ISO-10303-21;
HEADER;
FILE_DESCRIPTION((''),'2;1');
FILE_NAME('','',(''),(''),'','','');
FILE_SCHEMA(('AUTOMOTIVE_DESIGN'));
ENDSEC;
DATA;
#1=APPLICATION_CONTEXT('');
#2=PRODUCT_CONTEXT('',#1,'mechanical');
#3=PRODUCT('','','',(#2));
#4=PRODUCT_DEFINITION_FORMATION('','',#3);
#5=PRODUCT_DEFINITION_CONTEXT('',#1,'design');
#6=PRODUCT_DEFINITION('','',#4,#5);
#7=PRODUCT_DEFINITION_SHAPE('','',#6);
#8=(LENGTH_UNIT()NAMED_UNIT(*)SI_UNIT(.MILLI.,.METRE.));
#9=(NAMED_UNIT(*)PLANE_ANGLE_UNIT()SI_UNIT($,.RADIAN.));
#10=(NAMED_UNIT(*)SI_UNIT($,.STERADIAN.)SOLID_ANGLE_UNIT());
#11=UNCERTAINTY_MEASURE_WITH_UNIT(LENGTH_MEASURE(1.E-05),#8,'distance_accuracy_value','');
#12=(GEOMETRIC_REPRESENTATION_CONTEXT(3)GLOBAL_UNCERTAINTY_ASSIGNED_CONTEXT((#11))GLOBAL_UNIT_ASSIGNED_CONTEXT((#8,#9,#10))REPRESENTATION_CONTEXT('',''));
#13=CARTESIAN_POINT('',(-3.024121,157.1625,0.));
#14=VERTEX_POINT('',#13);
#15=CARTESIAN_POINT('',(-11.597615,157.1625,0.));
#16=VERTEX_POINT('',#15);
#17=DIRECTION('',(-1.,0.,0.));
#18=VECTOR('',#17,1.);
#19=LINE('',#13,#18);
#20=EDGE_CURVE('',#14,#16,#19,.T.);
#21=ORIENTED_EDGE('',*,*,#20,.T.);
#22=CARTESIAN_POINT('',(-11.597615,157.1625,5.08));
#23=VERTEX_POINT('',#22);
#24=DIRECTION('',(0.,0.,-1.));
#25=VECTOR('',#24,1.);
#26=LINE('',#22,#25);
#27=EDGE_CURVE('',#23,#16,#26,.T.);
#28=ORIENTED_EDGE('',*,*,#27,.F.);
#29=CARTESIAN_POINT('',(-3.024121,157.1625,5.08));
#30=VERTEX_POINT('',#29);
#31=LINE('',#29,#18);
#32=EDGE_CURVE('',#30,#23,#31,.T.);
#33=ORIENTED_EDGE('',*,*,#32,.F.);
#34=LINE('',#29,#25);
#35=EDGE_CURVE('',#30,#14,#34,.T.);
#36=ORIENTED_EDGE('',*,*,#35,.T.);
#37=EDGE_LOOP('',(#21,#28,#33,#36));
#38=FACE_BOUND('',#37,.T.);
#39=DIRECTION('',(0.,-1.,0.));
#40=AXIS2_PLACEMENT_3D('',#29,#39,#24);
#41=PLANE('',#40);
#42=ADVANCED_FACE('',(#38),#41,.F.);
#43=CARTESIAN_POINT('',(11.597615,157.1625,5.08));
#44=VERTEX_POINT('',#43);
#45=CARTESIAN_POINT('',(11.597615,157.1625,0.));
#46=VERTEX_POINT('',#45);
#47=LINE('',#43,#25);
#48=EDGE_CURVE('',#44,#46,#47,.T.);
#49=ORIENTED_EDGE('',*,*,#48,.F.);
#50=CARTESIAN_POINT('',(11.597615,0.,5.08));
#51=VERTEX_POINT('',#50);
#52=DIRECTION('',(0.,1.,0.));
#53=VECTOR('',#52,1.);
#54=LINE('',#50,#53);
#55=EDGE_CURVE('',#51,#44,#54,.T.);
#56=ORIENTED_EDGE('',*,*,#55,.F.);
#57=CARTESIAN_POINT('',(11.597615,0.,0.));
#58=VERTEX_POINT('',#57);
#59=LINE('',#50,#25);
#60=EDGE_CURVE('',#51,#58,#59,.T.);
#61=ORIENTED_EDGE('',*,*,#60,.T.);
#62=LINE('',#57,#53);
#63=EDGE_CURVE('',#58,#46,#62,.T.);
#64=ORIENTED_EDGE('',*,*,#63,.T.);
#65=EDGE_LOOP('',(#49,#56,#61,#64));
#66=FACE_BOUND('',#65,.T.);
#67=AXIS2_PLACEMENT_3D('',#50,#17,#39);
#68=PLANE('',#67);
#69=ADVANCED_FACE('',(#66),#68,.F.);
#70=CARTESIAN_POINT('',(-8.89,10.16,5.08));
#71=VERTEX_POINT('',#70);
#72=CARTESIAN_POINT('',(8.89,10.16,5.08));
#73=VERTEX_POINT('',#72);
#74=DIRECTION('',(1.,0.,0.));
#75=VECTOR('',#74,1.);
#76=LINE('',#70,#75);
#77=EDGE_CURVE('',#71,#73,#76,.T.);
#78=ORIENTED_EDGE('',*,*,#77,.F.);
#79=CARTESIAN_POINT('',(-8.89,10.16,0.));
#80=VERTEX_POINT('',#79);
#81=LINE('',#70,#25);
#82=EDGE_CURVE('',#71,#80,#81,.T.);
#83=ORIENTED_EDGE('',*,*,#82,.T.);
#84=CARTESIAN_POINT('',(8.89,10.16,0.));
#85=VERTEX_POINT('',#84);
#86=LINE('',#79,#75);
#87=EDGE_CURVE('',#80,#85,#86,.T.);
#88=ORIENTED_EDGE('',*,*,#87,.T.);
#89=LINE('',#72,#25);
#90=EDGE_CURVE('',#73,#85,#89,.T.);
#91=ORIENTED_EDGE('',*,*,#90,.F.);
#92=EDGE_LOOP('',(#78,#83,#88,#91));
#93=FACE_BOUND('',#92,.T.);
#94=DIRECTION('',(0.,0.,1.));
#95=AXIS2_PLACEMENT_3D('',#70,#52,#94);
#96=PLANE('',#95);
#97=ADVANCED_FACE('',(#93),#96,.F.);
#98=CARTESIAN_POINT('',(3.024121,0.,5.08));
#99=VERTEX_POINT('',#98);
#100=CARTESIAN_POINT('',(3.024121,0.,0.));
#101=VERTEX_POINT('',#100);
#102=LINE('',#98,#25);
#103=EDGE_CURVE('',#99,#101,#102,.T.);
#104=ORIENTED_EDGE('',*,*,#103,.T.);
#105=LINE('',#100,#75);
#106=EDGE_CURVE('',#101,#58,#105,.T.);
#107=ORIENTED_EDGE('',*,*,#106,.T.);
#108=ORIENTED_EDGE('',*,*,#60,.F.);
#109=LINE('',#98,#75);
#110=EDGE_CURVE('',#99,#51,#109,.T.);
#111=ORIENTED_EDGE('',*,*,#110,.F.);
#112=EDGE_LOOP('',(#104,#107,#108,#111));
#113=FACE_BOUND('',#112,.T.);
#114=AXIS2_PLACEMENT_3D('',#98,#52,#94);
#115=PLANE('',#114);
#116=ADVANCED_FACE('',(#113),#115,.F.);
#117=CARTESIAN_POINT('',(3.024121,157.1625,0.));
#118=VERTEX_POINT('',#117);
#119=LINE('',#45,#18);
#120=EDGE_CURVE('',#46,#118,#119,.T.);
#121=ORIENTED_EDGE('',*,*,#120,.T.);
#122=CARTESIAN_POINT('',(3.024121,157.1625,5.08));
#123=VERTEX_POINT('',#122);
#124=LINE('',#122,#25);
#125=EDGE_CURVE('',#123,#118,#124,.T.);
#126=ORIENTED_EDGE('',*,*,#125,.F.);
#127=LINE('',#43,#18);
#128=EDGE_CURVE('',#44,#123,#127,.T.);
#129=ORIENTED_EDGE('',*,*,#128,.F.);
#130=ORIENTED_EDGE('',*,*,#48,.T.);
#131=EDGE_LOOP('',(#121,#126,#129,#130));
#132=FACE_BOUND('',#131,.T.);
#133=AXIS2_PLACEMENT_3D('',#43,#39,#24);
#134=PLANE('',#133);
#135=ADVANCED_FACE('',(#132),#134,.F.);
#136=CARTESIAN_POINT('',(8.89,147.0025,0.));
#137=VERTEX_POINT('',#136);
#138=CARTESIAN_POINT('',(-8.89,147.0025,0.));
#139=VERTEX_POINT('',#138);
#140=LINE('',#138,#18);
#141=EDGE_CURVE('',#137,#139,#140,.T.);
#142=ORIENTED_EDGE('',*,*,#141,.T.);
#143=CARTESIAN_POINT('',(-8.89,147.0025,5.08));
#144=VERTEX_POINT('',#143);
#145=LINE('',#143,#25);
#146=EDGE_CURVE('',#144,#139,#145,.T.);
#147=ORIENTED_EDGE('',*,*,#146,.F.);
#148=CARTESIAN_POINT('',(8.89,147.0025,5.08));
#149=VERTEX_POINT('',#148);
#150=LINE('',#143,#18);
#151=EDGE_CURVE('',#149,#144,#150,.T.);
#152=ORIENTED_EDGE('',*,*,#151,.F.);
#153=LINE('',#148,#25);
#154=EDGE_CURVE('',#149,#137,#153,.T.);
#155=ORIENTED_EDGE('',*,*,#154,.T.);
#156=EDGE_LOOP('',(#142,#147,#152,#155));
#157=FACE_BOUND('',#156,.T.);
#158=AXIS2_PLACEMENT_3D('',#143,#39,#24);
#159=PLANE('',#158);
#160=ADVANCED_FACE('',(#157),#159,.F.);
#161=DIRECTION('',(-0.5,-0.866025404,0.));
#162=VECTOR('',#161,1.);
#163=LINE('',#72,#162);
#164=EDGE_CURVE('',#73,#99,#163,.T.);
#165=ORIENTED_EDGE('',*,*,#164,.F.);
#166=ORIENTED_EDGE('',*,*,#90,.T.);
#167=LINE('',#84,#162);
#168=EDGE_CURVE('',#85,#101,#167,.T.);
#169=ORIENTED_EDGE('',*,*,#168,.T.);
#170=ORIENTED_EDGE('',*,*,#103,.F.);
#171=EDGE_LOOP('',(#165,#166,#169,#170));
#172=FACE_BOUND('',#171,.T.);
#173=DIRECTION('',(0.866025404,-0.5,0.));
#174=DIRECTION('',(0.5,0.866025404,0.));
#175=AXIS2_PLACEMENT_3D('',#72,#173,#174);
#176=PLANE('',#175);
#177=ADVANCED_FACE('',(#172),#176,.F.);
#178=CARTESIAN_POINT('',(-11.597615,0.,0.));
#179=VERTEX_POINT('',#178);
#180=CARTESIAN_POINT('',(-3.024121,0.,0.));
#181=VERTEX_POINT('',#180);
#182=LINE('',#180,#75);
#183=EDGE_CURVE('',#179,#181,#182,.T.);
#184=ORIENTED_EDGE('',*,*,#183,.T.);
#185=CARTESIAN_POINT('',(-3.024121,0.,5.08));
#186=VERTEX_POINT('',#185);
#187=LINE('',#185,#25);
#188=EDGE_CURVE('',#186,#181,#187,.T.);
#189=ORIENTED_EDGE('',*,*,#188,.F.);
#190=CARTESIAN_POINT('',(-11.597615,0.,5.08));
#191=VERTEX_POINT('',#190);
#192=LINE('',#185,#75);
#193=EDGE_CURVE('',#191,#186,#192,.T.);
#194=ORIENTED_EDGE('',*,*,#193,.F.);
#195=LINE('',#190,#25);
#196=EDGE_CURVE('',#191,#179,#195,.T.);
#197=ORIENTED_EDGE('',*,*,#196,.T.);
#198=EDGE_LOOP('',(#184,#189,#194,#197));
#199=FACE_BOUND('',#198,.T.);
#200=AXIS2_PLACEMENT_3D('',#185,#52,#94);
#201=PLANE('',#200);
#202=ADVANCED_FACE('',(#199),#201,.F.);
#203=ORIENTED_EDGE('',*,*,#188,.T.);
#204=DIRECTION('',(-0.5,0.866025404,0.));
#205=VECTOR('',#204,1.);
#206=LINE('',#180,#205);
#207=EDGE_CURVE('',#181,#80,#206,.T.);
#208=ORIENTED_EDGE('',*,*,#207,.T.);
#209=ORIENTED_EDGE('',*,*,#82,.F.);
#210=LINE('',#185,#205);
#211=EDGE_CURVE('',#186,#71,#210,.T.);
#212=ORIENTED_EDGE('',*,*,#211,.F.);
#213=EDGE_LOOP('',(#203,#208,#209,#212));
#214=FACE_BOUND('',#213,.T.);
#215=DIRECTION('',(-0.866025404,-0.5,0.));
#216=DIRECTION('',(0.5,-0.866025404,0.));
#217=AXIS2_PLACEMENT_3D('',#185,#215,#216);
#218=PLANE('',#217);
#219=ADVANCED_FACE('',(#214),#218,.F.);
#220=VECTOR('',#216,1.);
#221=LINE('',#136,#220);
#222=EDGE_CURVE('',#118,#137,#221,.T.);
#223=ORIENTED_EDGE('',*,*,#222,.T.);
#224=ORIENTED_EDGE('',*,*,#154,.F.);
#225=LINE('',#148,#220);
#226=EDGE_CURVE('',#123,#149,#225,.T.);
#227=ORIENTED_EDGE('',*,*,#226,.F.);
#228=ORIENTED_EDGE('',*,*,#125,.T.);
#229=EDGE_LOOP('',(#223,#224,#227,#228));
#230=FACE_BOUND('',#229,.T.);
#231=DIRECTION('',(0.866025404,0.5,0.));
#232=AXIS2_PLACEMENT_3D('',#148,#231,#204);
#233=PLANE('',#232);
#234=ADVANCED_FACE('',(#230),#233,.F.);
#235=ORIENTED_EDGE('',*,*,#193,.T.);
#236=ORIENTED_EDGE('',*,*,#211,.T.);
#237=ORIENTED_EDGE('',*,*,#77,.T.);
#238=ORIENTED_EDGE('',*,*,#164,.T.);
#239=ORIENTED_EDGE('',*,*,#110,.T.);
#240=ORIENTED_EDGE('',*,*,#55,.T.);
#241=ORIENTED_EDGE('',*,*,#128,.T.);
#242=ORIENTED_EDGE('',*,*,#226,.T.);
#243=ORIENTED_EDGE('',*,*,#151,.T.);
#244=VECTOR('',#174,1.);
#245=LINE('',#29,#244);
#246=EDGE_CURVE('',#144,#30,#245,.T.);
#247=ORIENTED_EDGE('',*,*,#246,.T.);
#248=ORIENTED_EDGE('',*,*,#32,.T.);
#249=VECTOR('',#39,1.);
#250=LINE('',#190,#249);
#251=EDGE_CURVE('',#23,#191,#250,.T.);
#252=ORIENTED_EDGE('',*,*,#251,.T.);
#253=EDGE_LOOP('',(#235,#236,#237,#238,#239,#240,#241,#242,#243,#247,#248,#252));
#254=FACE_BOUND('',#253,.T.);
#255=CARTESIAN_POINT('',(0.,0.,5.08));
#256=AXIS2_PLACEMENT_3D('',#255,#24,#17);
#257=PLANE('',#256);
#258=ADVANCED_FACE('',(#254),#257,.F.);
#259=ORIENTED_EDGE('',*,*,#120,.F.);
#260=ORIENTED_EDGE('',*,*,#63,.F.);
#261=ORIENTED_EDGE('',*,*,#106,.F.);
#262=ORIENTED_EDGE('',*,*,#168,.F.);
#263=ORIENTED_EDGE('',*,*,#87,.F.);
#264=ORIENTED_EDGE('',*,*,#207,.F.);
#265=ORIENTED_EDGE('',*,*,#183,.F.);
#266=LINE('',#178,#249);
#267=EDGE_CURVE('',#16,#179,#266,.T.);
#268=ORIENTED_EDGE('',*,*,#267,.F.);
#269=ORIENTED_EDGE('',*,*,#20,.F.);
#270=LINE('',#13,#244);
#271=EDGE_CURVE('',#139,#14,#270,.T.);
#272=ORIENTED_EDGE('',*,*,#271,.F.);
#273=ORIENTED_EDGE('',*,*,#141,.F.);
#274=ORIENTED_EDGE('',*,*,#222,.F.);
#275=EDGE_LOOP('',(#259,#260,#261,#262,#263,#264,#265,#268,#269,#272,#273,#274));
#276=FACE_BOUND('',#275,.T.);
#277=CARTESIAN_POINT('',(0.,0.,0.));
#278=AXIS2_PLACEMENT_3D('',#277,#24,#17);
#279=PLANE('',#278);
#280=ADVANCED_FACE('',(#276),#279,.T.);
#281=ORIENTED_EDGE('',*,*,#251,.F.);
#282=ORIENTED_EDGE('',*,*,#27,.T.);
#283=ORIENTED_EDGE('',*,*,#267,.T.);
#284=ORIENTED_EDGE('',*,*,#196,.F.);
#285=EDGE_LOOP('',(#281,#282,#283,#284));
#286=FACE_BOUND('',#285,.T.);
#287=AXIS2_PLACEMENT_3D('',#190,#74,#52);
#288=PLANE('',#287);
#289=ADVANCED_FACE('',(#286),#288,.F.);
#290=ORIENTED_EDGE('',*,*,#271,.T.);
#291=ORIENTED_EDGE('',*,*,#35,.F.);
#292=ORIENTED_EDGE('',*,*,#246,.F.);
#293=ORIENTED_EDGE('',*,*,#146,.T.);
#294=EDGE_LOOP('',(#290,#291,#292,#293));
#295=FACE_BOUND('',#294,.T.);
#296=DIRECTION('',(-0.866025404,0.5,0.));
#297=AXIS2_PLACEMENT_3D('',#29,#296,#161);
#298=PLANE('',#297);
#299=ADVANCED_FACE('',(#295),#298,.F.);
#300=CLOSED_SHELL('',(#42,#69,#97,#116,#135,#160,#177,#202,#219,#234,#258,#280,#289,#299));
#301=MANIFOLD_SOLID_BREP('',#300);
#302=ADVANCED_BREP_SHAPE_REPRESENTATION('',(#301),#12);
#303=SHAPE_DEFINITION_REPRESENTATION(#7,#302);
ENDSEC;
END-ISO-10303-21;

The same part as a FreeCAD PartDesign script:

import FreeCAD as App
import Part
import Sketcher

V = App.Vector
Q = App.Units.Quantity


def add_polygon(sketch, points):
    """Adds a closed chain of lines whose ends are joined by coincident constraints."""
    first, n = sketch.GeometryCount, len(points)
    for a, b in zip(points, points[1:] + points[:1]):
        sketch.addGeometry(Part.LineSegment(App.Vector(*a, 0), App.Vector(*b, 0)), False)
    for i in range(n):
        sketch.addConstraint(Sketcher.Constraint("Coincident", first + i, 2, first + (i + 1) % n, 1))

doc = App.newDocument("Part")
body = doc.addObject("PartDesign::Body", "Body")

sketch1 = body.newObject("Sketcher::SketchObject", "Sketch")
sketch1.AttachmentSupport = (doc.getObject("XY_Plane"), [""])
sketch1.MapMode = "FlatFace"
add_polygon(sketch1, [(-3, 0), (-9, 10), (9, 10), (3, 0), (12, 0), (12, 157), (3, 157), (9, 147), (-9, 147), (-3, 157), (-12, 157), (-12, 0)])
sketch1.addConstraint([
    Sketcher.Constraint("Horizontal", 1),
    Sketcher.Constraint("Horizontal", 3),
    Sketcher.Constraint("Vertical", 4),
    Sketcher.Constraint("Horizontal", 5),
    Sketcher.Constraint("Horizontal", 7),
    Sketcher.Constraint("Horizontal", 9),
    Sketcher.Constraint("Vertical", 10),
    Sketcher.Constraint("Horizontal", 11),
    Sketcher.Constraint("Symmetric", 3, 2, 10, 2, -1, 1),
    Sketcher.Constraint("Symmetric", 5, 2, 8, 2, -2),
    Sketcher.Constraint("Symmetric", 2, 2, 11, 2, -2),
    Sketcher.Constraint("Parallel", 0, 6),
    Sketcher.Constraint("Parallel", 2, 8),
    Sketcher.Constraint("Vertical", 2, 2, 5, 2),
    Sketcher.Constraint("Vertical", 1, 2, 6, 2),
    Sketcher.Constraint("Vertical", 0, 2, 7, 2),
    Sketcher.Constraint("DistanceX", 1, 1, 1, 2, Q("0.7 in")),
    Sketcher.Constraint("Angle", 0, Q("120 deg")),
    Sketcher.Constraint("DistanceY", -1, 1, 0, 2, Q("0.4 in")),
    Sketcher.Constraint("DistanceY", 4, 1, 4, 2, Q("6.1875 in")),
    Sketcher.Constraint("DistanceX", 3, 1, 3, 2, 8.573493),
])
pad1 = body.newObject("PartDesign::Pad", "Pad")
pad1.Profile = sketch1
pad1.Length = Q("0.2 in")

doc.recompute()
